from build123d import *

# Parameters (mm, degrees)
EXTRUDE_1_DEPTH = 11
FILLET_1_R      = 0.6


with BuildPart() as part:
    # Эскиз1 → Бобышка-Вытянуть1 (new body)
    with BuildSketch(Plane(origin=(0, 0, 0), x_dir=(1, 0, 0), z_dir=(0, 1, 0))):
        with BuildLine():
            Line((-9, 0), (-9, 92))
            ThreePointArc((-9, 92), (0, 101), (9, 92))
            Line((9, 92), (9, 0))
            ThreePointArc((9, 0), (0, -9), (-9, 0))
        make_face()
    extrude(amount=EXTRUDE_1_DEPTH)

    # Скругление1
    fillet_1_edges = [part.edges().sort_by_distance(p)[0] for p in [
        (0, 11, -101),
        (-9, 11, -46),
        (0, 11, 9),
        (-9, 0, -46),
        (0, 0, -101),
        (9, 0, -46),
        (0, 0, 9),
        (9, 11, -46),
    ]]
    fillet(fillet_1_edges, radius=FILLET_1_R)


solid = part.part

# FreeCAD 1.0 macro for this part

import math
import FreeCAD as App
import Part
import Sketcher

V = App.Vector
Q = App.Units.Quantity


def edges_at(feature, points):
    """Names of the edges that pass closest to the given points."""
    edges = feature.Shape.Edges
    near = lambda p: min(range(len(edges)), key=lambda i: edges[i].distToShape(Part.Vertex(*p))[0])
    return sorted({f"Edge{near(p) + 1}" for p in points})

doc = App.newDocument("Part")
params = doc.addObject("Spreadsheet::Sheet", "Params")
for row, (alias, value) in enumerate([
    ("sketch1_radius", "9 mm"),
    ("sketch1_height", "92 mm"),
    ("pad1_length", "11 mm"),
    ("fillet_radius", "0.6 mm"),
], start=1):
    params.set(f"A{row}", alias)
    params.set(f"B{row}", "=" + value)
    params.setAlias(f"B{row}", alias)

body = doc.addObject("PartDesign::Body", "Body")

sketch1 = body.newObject("Sketcher::SketchObject", "Sketch")
sketch1.AttachmentSupport = (doc.getObject("XZ_Plane"), [""])
sketch1.MapMode = "FlatFace"
sketch1.addGeometry([
    Part.LineSegment(V(-9, -92, 0), V(-9, 0, 0)),
    Part.ArcOfCircle(Part.Circle(V(0, 0, 0), V(0, 0, 1), 9), math.radians(0), math.radians(180)),
    Part.LineSegment(V(9, 0, 0), V(9, -92, 0)),
    Part.ArcOfCircle(Part.Circle(V(0, -92, 0), V(0, 0, 1), 9), math.radians(180), math.radians(360)),
], False)
sketch1.addConstraint([
    Sketcher.Constraint("Tangent", 0, 2, 1, 2),
    Sketcher.Constraint("Tangent", 1, 1, 2, 1),
    Sketcher.Constraint("Tangent", 2, 2, 3, 2),
    Sketcher.Constraint("Tangent", 3, 1, 0, 1),
    Sketcher.Constraint("Vertical", 0),
    Sketcher.Constraint("Vertical", 2),
    Sketcher.Constraint("Coincident", 1, 3, -1, 1),
    Sketcher.Constraint("Radius", 1, Q("9 mm")),
    Sketcher.Constraint("DistanceY", 0, 1, 0, 2, Q("92 mm")),
])
sketch1.setExpression("Constraints[7]", "Params.sketch1_radius")
sketch1.setExpression("Constraints[8]", "Params.sketch1_height")
pad1 = body.newObject("PartDesign::Pad", "Pad")
pad1.Profile = sketch1
pad1.setExpression("Length", "Params.pad1_length")
pad1.Reversed = True
doc.recompute()

fillet = body.newObject("PartDesign::Fillet", "Fillet")
fillet.Base = (pad1, edges_at(pad1, [
    (0, 11, -101),
    (-9, 11, -46),
    (0, 11, 9),
    (-9, 0, -46),
    (0, 0, -101),
    (9, 0, -46),
    (0, 0, 9),
    (9, 11, -46),
]))
fillet.setExpression("Radius", "Params.fillet_radius")

doc.recompute()
